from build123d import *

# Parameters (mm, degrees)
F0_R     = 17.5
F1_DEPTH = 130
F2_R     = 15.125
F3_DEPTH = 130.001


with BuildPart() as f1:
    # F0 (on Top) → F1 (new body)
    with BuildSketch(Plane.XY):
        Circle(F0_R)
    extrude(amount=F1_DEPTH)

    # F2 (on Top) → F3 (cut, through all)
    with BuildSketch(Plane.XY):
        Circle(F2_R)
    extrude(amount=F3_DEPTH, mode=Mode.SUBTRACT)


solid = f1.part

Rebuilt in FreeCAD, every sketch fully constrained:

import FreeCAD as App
import Part
import Sketcher
from FreeCAD import Vector

doc = App.newDocument("Part")
params = doc.addObject("Spreadsheet::Sheet", "Params")
for row, (alias, value) in enumerate([
    ("sketch1_diameter", "35 mm"),
    ("pad1_length", "130 mm"),
    ("sketch2_diameter", "30.25 mm"),
], start=1):
    params.set(f"A{row}", alias)
    params.set(f"B{row}", "=" + value)
    params.setAlias(f"B{row}", alias)

body = doc.addObject("PartDesign::Body", "Body")

# Sketch on XY plane
sketch1 = body.newObject("Sketcher::SketchObject", "Sketch")
sketch1.AttachmentSupport = (doc.getObject("XY_Plane"), [""])
sketch1.MapMode = "FlatFace"
sketch1.addGeometry(Part.Circle(Vector(0, 0, 0), Vector(0, 0, 1), 18), False)
sketch1.addConstraint([
    Sketcher.Constraint("Coincident", 0, 3, -1, 1),
    Sketcher.Constraint("Diameter", 0, 35.0),
])
sketch1.setExpression("Constraints[1]", "Params.sketch1_diameter")
pad1 = body.newObject("PartDesign::Pad", "Pad")
pad1.Profile = sketch1
pad1.setExpression("Length", "Params.pad1_length")

# Sketch on XY plane
sketch2 = body.newObject("Sketcher::SketchObject", "Sketch001")
sketch2.AttachmentSupport = (doc.getObject("XY_Plane"), [""])
sketch2.MapMode = "FlatFace"
sketch2.addGeometry(Part.Circle(Vector(0, 0, 0), Vector(0, 0, 1), 15), False)
sketch2.addConstraint([
    Sketcher.Constraint("Coincident", 0, 3, -1, 1),
    Sketcher.Constraint("Diameter", 0, 30.25),
])
sketch2.setExpression("Constraints[1]", "Params.sketch2_diameter")
pocket1 = body.newObject("PartDesign::Pocket", "Pocket")
pocket1.Profile = sketch2
pocket1.Type = "ThroughAll"
pocket1.Reversed = True

doc.recompute()
